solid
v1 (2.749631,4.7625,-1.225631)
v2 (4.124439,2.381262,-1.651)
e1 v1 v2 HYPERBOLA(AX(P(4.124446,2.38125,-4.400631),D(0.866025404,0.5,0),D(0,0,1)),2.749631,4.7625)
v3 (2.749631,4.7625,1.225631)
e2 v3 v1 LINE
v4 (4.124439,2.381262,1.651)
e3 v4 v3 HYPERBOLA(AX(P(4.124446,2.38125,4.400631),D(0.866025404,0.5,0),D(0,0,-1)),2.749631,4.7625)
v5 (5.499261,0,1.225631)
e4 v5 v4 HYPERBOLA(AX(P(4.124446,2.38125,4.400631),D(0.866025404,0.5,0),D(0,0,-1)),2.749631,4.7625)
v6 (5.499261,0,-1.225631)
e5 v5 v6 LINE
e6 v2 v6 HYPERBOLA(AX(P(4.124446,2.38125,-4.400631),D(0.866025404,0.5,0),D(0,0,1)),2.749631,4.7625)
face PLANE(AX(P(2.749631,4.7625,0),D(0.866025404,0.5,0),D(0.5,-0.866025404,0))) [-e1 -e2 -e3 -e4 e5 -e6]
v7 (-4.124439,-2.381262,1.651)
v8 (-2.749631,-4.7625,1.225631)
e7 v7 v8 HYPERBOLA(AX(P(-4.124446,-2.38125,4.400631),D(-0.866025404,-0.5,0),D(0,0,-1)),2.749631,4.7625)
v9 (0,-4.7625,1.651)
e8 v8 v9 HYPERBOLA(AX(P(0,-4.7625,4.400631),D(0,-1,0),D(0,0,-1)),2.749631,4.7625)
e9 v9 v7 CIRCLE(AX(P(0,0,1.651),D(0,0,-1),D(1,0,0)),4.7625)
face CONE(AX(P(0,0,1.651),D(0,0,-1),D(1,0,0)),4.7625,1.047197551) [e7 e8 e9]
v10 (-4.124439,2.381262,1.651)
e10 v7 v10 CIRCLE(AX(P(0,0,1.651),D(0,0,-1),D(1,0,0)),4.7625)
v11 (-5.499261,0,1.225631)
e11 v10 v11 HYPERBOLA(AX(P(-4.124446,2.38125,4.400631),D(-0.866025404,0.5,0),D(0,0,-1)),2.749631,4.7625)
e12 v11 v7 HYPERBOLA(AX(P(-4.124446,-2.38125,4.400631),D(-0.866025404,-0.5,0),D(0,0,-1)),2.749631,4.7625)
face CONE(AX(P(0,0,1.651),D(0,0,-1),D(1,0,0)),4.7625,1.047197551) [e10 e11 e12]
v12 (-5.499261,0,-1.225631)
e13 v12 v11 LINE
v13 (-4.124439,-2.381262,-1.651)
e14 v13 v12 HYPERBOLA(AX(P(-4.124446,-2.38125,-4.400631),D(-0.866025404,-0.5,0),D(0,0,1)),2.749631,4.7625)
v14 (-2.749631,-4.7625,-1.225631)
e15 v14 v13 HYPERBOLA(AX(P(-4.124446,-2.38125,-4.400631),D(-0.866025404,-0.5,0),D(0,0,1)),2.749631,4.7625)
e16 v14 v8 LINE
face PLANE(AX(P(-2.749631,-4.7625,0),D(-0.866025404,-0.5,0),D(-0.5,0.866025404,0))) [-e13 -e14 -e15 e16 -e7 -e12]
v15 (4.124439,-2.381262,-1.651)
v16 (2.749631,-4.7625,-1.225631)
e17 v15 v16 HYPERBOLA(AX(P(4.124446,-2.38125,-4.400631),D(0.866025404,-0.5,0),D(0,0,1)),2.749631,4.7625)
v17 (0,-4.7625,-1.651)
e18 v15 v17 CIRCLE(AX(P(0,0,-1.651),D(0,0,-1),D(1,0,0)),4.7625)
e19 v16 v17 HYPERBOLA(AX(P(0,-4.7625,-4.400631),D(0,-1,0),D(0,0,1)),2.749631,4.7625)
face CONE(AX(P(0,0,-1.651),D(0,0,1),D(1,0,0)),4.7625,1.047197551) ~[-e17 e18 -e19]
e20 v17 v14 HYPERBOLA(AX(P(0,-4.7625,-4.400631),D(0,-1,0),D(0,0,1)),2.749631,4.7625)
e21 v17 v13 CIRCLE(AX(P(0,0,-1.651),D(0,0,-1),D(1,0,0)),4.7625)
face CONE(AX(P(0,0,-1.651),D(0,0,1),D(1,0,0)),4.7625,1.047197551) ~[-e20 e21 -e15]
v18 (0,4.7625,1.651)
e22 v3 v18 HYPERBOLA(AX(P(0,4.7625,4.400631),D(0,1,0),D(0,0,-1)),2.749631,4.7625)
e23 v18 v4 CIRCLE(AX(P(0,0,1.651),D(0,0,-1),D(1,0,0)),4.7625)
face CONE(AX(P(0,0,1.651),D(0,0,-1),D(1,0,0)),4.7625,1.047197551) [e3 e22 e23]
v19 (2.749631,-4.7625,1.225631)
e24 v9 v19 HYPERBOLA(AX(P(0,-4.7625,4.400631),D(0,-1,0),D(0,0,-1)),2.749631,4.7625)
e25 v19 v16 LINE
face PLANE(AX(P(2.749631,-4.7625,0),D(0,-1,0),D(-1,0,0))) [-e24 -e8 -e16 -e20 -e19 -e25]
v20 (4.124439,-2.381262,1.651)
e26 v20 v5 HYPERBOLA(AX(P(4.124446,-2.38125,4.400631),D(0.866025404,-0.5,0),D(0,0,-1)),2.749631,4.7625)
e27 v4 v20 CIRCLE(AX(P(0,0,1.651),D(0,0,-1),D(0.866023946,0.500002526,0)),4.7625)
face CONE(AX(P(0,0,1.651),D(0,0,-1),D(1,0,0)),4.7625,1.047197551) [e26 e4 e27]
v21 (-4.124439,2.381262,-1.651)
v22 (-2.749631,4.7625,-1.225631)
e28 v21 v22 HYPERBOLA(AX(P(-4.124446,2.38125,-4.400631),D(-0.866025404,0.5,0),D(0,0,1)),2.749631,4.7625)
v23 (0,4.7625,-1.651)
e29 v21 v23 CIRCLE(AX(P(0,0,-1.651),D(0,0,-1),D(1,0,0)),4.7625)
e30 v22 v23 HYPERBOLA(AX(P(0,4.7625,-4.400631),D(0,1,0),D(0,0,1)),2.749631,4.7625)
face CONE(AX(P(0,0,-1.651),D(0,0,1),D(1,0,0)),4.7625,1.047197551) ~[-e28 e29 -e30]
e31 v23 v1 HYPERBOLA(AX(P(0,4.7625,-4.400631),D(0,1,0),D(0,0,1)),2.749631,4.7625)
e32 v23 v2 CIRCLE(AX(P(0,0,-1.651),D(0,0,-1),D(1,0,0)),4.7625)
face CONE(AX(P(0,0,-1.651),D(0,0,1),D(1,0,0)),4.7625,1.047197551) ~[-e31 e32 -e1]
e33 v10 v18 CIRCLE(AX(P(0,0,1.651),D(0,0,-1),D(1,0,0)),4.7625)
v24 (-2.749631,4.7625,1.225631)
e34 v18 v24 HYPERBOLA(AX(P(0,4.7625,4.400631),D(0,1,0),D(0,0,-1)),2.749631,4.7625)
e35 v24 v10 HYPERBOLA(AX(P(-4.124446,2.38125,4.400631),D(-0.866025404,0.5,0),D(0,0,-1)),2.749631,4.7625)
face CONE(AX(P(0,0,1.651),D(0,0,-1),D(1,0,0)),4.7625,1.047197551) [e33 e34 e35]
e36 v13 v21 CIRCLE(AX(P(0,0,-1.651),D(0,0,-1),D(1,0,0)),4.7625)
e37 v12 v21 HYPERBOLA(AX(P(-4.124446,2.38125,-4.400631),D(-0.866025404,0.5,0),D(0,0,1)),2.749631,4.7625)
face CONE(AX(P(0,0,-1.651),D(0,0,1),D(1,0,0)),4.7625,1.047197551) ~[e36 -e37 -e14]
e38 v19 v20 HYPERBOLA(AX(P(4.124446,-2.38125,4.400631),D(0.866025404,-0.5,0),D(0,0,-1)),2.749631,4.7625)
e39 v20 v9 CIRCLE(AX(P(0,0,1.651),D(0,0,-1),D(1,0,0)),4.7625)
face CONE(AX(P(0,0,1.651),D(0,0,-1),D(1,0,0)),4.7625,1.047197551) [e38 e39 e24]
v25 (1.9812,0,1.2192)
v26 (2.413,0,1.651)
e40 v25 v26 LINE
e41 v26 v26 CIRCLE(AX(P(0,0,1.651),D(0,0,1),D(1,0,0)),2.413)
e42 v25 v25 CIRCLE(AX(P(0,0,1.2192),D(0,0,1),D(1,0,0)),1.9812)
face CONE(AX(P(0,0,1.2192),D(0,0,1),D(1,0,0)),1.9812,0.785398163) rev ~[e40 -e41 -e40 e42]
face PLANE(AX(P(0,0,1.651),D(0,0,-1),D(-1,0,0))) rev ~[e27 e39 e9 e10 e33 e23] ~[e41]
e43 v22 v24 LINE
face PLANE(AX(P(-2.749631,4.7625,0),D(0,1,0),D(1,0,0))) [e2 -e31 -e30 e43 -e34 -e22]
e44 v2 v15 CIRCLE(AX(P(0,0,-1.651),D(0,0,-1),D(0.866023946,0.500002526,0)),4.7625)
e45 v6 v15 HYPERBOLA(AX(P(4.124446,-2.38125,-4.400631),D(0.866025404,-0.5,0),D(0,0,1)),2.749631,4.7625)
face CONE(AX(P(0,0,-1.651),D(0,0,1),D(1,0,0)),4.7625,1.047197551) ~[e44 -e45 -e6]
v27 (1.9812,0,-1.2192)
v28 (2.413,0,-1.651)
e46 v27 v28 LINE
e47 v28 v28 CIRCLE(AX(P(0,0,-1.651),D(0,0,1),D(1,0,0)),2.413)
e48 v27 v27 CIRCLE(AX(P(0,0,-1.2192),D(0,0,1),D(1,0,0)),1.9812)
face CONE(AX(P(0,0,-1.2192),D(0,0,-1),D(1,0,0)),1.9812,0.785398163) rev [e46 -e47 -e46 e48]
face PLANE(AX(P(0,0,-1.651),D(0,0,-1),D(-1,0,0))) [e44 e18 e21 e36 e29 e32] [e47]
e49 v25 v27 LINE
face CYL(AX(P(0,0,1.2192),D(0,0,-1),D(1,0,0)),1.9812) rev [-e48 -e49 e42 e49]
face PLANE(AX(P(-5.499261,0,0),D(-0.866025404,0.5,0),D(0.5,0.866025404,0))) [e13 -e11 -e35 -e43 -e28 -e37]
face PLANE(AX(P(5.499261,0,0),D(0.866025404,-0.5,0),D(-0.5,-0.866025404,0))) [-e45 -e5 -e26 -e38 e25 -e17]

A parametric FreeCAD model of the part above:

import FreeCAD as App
import Part
import Sketcher
from FreeCAD import Vector
Q = App.Units.Quantity


def add_polygon(sketch, points):
    """Adds a closed chain of lines whose ends are joined by coincident constraints."""
    first, n = sketch.GeometryCount, len(points)
    for a, b in zip(points, points[1:] + points[:1]):
        sketch.addGeometry(Part.LineSegment(App.Vector(*a, 0), App.Vector(*b, 0)), False)
    for i in range(n):
        sketch.addConstraint(Sketcher.Constraint("Coincident", first + i, 2, first + (i + 1) % n, 1))

doc = App.newDocument("Part")
params = doc.addObject("Spreadsheet::Sheet", "Params")
for row, (alias, value) in enumerate([
    ("pad1_length", "0.13 in"),
    ("groove_angle", "360 deg"),
    ("sketch3_width", "0.095 in"),
    ("sketch3_width2", "0.078 in"),
    ("sketch3_height", "0.113 in"),
    ("groove2_angle", "360 deg"),
], start=1):
    params.set(f"A{row}", alias)
    params.set(f"B{row}", "=" + value)
    params.setAlias(f"B{row}", alias)

body = doc.addObject("PartDesign::Body", "Body")

# Sketch on XY plane
sketch1 = body.newObject("Sketcher::SketchObject", "Sketch")
sketch1.AttachmentSupport = (doc.getObject("XY_Plane"), [""])
sketch1.MapMode = "FlatFace"
add_polygon(sketch1, [(-3, 5), (3, 5), (5, 0), (3, -5), (-3, -5), (-5, 0)])  # lines 0-5
sketch1.addConstraint(Sketcher.Constraint("Horizontal", 0))
sketch1.addConstraint(Sketcher.Constraint("Horizontal", 3))
sketch1.addConstraint(Sketcher.Constraint("Symmetric", 0, 2, 3, 2, -1, 1))
sketch1.addConstraint(Sketcher.Constraint("Symmetric", 1, 2, 4, 2, -1, 1))
sketch1.addConstraint(Sketcher.Constraint("PointOnObject", 1, 2, -1))
sketch1.addConstraint(Sketcher.Constraint("Parallel", 2, 5))
sketch1.addConstraint(Sketcher.Constraint("Vertical", 0, 2, 2, 2))
sketch1.addConstraint(Sketcher.Constraint("Angle", 1, Q("-60 deg")))
sketch1.addConstraint(Sketcher.Constraint("DistanceY", -1, 1, 0, 2, Q("0.1875 in")))
sketch1.addConstraint(Sketcher.Constraint("DistanceX", 0, 1, 0, 2, Q("5.499261 mm")))
pad1 = body.newObject("PartDesign::Pad", "Pad")
pad1.Profile = sketch1
pad1.setExpression("Length", "Params.pad1_length")
pad1.Midplane = True

# Sketch on XZ plane
sketch2 = body.newObject("Sketcher::SketchObject", "Sketch001")
sketch2.AttachmentSupport = (doc.getObject("XZ_Plane"), [""])
sketch2.MapMode = "FlatFace"
add_polygon(sketch2, [(5.5, -1.23), (5.5, -1.65), (4.76, -1.65)])  # lines 0-2
sketch2.addConstraint(Sketcher.Constraint("Vertical", 0))
sketch2.addConstraint(Sketcher.Constraint("Horizontal", 1))
sketch2.addConstraint(Sketcher.Constraint("Angle", 2, Q("30 deg")))
sketch2.addConstraint(Sketcher.Constraint("DistanceY", 0, 2, -1, 1, Q("0.065 in")))
sketch2.addConstraint(Sketcher.Constraint("DistanceX", -1, 1, 1, 2, Q("0.1875 in")))
sketch2.addConstraint(Sketcher.Constraint("DistanceX", 1, 2, 1, 1, Q("0.736761 mm")))
groove = body.newObject("PartDesign::Groove", "Groove")
groove.Profile = sketch2
groove.ReferenceAxis = (sketch2, ["V_Axis"])
groove.setExpression("Angle", "Params.groove_angle")

# Sketch on XZ plane
sketch3 = body.newObject("Sketcher::SketchObject", "Sketch002")
sketch3.AttachmentSupport = (doc.getObject("XZ_Plane"), [""])
sketch3.MapMode = "FlatFace"
add_polygon(sketch3, [(2.4, -1.7), (0, -1.7), (0, 1.2), (2, 1.2), (2, -1.2)])  # lines 0-4
sketch3.addConstraint(Sketcher.Constraint("Horizontal", 0))
sketch3.addConstraint(Sketcher.Constraint("Vertical", 1))
sketch3.addConstraint(Sketcher.Constraint("Horizontal", 2))
sketch3.addConstraint(Sketcher.Constraint("Vertical", 3))
sketch3.addConstraint(Sketcher.Constraint("PointOnObject", 0, 2, -2))
sketch3.addConstraint(Sketcher.Constraint("Angle", 4, Q("-45 deg")))
sketch3.addConstraint(Sketcher.Constraint("DistanceX", 0, 2, 0, 1, Q("0.095 in")))
sketch3.addConstraint(Sketcher.Constraint("DistanceX", 2, 1, 2, 2, Q("0.078 in")))
sketch3.addConstraint(Sketcher.Constraint("DistanceY", 1, 1, 1, 2, Q("0.113 in")))
sketch3.addConstraint(Sketcher.Constraint("DistanceY", 0, 2, -1, 1, Q("0.065 in")))
sketch3.setExpression("Constraints[11]", "Params.sketch3_width")
sketch3.setExpression("Constraints[12]", "Params.sketch3_width2")
sketch3.setExpression("Constraints[13]", "Params.sketch3_height")
groove2 = body.newObject("PartDesign::Groove", "Groove001")
groove2.Profile = sketch3
groove2.ReferenceAxis = (sketch3, ["V_Axis"])
groove2.setExpression("Angle", "Params.groove2_angle")
doc.recompute()

mirrored = body.newObject("PartDesign::Mirrored", "Mirrored")
mirrored.Originals = [groove, groove2]
mirrored.MirrorPlane = (doc.getObject("XY_Plane"), [""])
body.Tip = mirrored

doc.recompute()
